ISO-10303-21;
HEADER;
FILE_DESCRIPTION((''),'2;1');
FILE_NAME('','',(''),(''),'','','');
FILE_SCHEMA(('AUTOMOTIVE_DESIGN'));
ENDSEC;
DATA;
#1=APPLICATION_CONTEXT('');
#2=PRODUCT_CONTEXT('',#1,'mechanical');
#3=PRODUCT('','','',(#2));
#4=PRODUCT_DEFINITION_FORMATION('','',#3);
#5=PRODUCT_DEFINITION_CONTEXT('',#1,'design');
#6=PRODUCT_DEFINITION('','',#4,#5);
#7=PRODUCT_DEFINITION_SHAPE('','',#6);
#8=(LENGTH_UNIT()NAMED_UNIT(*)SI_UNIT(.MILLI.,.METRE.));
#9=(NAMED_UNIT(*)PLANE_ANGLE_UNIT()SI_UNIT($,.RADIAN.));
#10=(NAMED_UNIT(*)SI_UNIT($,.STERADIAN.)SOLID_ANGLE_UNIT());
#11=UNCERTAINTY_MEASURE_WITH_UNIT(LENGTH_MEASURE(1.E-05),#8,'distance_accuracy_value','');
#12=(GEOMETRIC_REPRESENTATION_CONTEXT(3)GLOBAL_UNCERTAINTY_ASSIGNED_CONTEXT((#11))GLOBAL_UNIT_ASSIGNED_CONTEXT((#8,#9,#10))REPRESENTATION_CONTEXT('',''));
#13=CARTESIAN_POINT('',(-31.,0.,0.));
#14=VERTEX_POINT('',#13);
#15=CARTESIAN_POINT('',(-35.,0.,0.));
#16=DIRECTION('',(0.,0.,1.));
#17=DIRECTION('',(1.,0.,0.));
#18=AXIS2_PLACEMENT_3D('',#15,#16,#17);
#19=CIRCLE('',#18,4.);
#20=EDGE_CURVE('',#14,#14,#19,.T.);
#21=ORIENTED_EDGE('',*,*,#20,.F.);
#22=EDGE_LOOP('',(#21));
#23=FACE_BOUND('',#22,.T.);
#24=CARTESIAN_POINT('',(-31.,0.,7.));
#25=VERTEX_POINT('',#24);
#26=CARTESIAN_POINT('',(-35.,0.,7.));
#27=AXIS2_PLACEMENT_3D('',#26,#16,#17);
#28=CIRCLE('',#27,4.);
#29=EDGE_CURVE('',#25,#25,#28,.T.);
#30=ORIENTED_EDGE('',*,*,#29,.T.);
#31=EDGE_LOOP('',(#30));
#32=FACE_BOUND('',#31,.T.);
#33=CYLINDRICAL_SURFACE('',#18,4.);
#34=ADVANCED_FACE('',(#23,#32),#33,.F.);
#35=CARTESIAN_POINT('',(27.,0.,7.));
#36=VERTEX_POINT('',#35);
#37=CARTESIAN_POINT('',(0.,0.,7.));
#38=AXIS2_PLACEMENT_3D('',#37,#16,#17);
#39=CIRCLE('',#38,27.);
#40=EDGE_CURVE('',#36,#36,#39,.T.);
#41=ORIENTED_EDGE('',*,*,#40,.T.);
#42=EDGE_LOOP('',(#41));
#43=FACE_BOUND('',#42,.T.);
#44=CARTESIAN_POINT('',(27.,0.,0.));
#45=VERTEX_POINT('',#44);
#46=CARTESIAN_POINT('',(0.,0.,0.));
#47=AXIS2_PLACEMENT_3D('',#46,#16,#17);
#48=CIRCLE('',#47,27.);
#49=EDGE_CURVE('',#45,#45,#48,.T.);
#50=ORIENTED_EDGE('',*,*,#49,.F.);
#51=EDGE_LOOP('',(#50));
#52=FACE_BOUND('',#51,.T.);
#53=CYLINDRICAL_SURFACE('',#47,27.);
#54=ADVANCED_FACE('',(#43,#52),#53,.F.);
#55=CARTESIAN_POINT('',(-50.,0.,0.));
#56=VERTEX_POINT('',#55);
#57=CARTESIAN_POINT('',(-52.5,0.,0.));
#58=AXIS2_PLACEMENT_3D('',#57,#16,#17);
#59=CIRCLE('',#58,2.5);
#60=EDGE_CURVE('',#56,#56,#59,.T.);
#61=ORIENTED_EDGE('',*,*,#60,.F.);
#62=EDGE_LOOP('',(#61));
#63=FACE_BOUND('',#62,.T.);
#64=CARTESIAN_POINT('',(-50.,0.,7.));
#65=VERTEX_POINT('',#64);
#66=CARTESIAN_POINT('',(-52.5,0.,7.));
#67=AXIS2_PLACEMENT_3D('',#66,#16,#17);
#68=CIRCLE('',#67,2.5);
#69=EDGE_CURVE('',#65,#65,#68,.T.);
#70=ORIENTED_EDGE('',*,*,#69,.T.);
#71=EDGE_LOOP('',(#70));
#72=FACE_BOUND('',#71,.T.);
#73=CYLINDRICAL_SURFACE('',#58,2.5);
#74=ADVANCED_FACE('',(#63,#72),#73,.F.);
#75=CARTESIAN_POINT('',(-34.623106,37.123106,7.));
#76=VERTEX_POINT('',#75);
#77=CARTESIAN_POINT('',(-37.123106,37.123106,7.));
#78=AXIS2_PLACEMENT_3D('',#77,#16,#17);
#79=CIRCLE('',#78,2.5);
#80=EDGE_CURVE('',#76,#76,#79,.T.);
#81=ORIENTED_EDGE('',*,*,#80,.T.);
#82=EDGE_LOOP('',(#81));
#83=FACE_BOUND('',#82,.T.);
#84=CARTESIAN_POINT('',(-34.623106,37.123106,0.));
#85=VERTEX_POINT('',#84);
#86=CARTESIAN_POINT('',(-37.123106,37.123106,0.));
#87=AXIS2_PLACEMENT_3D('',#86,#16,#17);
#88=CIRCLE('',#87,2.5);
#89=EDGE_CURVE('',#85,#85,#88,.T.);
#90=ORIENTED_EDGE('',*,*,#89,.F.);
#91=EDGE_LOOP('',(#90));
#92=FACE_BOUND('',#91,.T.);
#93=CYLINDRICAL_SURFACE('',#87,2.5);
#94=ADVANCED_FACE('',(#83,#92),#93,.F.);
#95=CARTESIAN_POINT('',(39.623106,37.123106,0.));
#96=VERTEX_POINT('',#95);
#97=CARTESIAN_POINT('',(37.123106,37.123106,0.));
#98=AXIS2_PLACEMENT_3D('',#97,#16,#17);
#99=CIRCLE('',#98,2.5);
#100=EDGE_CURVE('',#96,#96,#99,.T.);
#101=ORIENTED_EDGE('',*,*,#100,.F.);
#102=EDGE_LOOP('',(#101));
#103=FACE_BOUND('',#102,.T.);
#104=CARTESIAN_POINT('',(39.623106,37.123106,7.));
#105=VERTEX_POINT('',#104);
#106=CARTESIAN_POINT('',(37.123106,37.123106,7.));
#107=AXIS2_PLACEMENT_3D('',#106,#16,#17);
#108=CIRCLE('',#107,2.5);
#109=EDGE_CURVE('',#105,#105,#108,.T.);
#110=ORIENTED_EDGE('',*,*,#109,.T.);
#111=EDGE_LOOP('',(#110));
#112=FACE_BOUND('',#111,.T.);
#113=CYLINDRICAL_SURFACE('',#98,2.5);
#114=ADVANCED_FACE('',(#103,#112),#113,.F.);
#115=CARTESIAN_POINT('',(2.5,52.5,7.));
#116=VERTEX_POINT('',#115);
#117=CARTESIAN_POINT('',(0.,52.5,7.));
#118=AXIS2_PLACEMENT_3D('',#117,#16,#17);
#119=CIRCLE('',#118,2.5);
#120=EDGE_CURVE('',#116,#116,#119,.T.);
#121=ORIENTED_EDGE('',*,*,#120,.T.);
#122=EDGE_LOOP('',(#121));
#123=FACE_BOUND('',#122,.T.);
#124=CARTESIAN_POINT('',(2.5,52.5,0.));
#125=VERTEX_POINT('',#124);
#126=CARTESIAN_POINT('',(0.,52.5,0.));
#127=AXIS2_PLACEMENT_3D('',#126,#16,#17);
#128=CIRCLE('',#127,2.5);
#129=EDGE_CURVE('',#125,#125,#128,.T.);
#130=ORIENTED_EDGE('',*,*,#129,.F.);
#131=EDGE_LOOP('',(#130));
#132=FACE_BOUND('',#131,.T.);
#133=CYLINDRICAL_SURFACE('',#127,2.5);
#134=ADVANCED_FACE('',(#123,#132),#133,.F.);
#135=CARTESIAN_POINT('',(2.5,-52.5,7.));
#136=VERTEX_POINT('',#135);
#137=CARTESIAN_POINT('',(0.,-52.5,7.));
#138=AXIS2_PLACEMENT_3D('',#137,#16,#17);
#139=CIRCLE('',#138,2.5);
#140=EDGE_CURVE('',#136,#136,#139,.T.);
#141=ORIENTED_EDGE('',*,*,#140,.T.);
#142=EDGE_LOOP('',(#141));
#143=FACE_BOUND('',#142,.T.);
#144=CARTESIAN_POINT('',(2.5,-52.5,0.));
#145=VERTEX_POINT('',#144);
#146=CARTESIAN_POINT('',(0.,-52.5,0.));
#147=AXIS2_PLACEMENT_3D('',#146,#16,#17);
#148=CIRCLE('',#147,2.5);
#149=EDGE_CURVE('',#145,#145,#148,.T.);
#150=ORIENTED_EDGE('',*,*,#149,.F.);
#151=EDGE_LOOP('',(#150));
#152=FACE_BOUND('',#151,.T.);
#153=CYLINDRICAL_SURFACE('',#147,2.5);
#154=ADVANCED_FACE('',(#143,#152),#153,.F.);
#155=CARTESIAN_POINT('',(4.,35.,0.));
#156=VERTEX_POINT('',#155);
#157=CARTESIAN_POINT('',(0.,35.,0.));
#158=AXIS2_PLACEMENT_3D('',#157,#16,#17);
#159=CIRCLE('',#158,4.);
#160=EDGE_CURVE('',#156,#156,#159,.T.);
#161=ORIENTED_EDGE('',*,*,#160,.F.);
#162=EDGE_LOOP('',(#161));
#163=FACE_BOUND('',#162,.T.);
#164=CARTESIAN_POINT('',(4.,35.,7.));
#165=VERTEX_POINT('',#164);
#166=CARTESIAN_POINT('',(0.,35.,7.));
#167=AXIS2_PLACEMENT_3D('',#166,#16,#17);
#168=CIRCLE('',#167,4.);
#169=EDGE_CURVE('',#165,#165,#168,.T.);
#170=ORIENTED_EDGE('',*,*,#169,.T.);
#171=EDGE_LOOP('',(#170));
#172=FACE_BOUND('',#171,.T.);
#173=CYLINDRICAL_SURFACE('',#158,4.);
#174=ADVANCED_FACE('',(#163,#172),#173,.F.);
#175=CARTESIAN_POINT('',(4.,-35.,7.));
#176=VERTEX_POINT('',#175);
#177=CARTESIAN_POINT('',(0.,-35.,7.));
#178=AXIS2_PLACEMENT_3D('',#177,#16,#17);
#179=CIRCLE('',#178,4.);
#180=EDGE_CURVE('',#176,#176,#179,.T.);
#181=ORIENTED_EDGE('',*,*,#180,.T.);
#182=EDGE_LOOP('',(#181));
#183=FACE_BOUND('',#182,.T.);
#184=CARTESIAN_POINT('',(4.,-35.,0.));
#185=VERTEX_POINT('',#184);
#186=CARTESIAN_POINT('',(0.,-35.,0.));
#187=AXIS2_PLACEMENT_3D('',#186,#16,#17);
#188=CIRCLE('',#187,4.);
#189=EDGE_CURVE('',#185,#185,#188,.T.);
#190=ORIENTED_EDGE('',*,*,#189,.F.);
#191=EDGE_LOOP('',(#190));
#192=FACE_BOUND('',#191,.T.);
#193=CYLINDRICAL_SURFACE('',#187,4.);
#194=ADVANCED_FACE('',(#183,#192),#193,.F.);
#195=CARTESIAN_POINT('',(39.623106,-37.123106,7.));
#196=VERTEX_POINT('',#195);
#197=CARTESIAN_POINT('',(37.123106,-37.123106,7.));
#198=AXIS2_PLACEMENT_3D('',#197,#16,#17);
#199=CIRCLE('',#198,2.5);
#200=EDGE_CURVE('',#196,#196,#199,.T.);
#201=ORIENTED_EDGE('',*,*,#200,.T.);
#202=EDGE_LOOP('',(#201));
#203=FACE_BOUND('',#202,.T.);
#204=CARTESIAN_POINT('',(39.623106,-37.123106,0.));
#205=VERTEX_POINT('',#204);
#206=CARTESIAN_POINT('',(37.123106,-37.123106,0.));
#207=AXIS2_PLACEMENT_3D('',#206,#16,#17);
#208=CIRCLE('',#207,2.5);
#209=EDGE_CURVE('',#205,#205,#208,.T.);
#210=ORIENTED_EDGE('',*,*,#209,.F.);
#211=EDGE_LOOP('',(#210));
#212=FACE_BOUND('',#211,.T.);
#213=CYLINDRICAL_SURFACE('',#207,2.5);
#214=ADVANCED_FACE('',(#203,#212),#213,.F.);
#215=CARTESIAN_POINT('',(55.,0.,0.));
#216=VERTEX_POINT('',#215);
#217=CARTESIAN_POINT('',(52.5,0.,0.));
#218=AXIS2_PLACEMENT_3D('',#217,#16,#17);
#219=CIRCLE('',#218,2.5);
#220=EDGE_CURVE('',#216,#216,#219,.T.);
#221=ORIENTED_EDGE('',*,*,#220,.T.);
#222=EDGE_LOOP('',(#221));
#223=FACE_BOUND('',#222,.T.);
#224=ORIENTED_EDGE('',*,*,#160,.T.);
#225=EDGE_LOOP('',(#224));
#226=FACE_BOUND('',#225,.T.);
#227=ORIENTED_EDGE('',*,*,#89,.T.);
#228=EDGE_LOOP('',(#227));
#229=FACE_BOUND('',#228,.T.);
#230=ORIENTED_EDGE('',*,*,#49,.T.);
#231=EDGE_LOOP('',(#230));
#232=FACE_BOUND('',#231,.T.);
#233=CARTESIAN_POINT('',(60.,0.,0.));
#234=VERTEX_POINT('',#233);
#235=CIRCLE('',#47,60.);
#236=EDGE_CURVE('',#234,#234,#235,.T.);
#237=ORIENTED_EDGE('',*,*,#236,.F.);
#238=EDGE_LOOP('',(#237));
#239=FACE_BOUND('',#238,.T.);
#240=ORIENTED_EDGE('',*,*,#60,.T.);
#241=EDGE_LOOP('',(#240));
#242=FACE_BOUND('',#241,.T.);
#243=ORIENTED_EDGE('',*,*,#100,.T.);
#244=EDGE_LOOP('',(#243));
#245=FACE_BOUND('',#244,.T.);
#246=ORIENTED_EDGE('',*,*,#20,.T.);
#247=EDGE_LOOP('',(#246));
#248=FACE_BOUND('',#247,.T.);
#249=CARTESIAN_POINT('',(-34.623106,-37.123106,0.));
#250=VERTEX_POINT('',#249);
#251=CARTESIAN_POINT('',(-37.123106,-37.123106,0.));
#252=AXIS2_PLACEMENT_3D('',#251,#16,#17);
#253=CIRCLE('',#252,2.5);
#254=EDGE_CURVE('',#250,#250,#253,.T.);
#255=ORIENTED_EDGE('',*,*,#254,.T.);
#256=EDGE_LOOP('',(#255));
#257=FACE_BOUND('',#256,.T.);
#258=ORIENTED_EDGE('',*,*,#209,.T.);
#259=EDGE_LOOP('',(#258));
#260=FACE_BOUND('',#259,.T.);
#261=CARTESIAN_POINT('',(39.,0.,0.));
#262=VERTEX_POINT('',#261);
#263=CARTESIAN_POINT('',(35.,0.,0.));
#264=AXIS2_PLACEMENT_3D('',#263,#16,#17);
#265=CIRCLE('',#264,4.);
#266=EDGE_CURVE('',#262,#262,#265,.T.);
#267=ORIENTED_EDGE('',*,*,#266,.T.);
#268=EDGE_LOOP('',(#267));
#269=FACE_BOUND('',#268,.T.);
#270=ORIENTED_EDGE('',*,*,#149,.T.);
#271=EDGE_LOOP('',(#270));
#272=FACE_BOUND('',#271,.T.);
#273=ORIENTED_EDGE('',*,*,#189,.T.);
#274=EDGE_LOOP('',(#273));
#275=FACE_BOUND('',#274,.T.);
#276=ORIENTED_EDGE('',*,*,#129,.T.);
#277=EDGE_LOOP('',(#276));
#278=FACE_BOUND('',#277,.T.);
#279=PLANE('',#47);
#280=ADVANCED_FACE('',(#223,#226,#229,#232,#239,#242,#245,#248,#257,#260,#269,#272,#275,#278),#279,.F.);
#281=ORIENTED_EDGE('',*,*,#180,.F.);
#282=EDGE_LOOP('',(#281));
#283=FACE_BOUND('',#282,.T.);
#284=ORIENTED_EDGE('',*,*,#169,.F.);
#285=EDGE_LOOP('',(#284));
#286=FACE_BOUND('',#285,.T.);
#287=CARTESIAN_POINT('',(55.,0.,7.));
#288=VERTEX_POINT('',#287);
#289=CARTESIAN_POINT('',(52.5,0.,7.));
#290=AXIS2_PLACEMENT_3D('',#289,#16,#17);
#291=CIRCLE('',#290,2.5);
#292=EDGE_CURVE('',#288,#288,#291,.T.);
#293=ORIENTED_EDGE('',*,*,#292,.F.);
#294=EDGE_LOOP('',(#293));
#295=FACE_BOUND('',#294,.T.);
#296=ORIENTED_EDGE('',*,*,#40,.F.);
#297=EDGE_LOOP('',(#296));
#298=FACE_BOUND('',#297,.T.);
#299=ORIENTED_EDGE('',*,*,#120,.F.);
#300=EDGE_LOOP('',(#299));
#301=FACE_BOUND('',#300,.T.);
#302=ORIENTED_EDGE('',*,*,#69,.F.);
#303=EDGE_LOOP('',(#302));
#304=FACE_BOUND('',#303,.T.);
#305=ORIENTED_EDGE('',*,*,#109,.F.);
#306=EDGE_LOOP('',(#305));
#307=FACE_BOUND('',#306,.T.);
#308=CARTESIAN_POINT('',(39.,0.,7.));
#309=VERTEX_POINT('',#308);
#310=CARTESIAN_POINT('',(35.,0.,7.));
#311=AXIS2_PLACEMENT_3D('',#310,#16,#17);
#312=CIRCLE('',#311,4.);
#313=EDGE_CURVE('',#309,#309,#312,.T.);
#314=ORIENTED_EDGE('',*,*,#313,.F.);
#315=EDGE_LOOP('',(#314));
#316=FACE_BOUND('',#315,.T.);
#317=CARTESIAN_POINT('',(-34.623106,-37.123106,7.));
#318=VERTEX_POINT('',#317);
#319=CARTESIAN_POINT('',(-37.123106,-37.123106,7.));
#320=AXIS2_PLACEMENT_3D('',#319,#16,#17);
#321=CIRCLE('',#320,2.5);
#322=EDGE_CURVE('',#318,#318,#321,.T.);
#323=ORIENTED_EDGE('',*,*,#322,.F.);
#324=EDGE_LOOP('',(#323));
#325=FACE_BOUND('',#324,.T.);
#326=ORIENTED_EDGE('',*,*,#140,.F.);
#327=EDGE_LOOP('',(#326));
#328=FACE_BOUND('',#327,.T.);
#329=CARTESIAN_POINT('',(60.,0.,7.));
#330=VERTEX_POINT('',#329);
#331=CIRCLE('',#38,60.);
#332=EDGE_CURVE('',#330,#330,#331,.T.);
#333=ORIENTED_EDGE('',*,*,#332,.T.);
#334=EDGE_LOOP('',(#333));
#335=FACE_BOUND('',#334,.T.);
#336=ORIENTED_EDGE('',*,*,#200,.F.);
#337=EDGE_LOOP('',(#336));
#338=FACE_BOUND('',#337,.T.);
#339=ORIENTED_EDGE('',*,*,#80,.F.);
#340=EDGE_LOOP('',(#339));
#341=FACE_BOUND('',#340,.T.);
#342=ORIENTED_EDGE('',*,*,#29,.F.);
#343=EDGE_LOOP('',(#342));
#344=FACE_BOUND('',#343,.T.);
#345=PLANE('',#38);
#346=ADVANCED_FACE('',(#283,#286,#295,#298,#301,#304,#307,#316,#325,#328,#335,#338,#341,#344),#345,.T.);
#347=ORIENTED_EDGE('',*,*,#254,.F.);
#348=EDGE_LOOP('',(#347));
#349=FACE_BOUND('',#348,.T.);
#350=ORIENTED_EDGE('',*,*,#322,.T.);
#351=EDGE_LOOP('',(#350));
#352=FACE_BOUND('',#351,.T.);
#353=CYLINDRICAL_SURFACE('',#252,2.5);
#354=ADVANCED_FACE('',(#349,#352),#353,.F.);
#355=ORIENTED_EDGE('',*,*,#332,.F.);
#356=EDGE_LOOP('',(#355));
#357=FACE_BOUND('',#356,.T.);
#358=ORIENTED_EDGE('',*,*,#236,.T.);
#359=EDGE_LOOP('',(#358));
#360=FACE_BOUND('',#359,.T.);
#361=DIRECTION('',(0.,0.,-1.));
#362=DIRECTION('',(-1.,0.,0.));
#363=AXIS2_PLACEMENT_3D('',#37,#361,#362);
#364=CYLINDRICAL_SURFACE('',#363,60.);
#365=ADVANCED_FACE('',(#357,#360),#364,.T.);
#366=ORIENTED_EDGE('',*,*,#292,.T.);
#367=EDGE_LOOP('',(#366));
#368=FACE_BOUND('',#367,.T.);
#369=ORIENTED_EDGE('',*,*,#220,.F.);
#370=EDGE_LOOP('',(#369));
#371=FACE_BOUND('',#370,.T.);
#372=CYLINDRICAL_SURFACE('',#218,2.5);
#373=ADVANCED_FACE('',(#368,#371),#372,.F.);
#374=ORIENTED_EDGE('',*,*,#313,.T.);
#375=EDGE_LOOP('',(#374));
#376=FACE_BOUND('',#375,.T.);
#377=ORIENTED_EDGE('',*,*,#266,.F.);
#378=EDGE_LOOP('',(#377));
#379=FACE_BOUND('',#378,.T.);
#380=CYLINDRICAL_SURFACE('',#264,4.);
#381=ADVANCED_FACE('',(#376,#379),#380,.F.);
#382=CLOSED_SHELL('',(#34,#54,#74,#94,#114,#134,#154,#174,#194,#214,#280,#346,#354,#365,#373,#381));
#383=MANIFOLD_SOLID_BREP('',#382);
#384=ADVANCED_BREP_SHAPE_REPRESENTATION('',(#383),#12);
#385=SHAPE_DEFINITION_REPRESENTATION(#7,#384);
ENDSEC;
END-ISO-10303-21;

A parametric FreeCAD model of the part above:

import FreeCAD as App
import Part
import Sketcher

doc = App.newDocument("Part")
body = doc.addObject("PartDesign::Body", "Body")

# Sketch on XY plane
sketch1 = doc.addObject("Sketcher::SketchObject", "Sketch")
body.addObject(sketch1)
sketch1.AttachmentSupport = (doc.XY_Plane, [""])
sketch1.MapMode = "FlatFace"
sketch1.addGeometry(Part.Circle(App.Vector(0, 0, 0), App.Vector(0, 0, 1), 60), False)
sketch1.addConstraint(Sketcher.Constraint("Coincident", 0, 3, -1, 1))
sketch1.addConstraint(Sketcher.Constraint("Diameter", 0, 120.0))
pad1 = doc.addObject("PartDesign::Pad", "Pad")
body.addObject(pad1)
pad1.Profile = sketch1
pad1.Length = 7

# Sketch on XY plane
sketch2 = doc.addObject("Sketcher::SketchObject", "Sketch001")
body.addObject(sketch2)
sketch2.AttachmentSupport = (doc.XY_Plane, [""])
sketch2.MapMode = "FlatFace"
sketch2.AttachmentOffset = App.Placement(App.Vector(0, 0, 7), App.Rotation())
sketch2.addGeometry(Part.Circle(App.Vector(0, 0, 0), App.Vector(0, 0, 1), 27), False)
sketch2.addConstraint(Sketcher.Constraint("Coincident", 0, 3, -1, 1))
sketch2.addConstraint(Sketcher.Constraint("Diameter", 0, 54.0))
pocket1 = doc.addObject("PartDesign::Pocket", "Pocket")
body.addObject(pocket1)
pocket1.Profile = sketch2
pocket1.Type = "ThroughAll"

# Sketch on XY plane
sketch3 = doc.addObject("Sketcher::SketchObject", "Sketch002")
body.addObject(sketch3)
sketch3.AttachmentSupport = (doc.XY_Plane, [""])
sketch3.MapMode = "FlatFace"
sketch3.AttachmentOffset = App.Placement(App.Vector(0, 0, 7), App.Rotation())
sketch3.addGeometry(Part.Circle(App.Vector(0, 35, 0), App.Vector(0, 0, 1), 4), False)
sketch3.addGeometry(Part.Circle(App.Vector(35, 0, 0), App.Vector(0, 0, 1), 4), False)
sketch3.addGeometry(Part.Circle(App.Vector(0, -35, 0), App.Vector(0, 0, 1), 4), False)
sketch3.addGeometry(Part.Circle(App.Vector(-35, 0, 0), App.Vector(0, 0, 1), 4), False)
sketch3.addConstraint(Sketcher.Constraint("Equal", 0, 1))
sketch3.addConstraint(Sketcher.Constraint("Equal", 1, 2))
sketch3.addConstraint(Sketcher.Constraint("Equal", 2, 3))
sketch3.addConstraint(Sketcher.Constraint("Symmetric", 0, 3, 2, 3, -1, 1))
sketch3.addConstraint(Sketcher.Constraint("Symmetric", 1, 3, 3, 3, -1, 1))
sketch3.addConstraint(Sketcher.Constraint("PointOnObject", 0, 3, -2))
sketch3.addConstraint(Sketcher.Constraint("PointOnObject", 1, 3, -1))
sketch3.addConstraint(Sketcher.Constraint("Diameter", 0, 8.0))
sketch3.addConstraint(Sketcher.Constraint("DistanceY", -1, 1, 0, 3, 35.0))
sketch3.addConstraint(Sketcher.Constraint("DistanceX", -1, 1, 1, 3, 35.0))
pocket2 = doc.addObject("PartDesign::Pocket", "Pocket001")
body.addObject(pocket2)
pocket2.Profile = sketch3
pocket2.Type = "ThroughAll"

# Sketch on XY plane
sketch4 = doc.addObject("Sketcher::SketchObject", "Sketch003")
body.addObject(sketch4)
sketch4.AttachmentSupport = (doc.XY_Plane, [""])
sketch4.MapMode = "FlatFace"
sketch4.AttachmentOffset = App.Placement(App.Vector(0, 0, 7), App.Rotation())
sketch4.addGeometry(Part.Circle(App.Vector(37.123106, 37.123106, 0), App.Vector(0, 0, 1), 2.5), False)
sketch4.addGeometry(Part.Circle(App.Vector(52.5, 0, 0), App.Vector(0, 0, 1), 2.5), False)
sketch4.addGeometry(Part.Circle(App.Vector(37.123106, -37.123106, 0), App.Vector(0, 0, 1), 2.5), False)
sketch4.addGeometry(Part.Circle(App.Vector(-52.5, 0, 0), App.Vector(0, 0, 1), 2.5), False)
sketch4.addGeometry(Part.Circle(App.Vector(-37.123106, 37.123106, 0), App.Vector(0, 0, 1), 2.5), False)
sketch4.addGeometry(Part.Circle(App.Vector(0, 52.5, 0), App.Vector(0, 0, 1), 2.5), False)
sketch4.addGeometry(Part.Circle(App.Vector(0, -52.5, 0), App.Vector(0, 0, 1), 2.5), False)
sketch4.addGeometry(Part.Circle(App.Vector(-37.123106, -37.123106, 0), App.Vector(0, 0, 1), 2.5), False)
sketch4.addConstraint(Sketcher.Constraint("Equal", 0, 1))
sketch4.addConstraint(Sketcher.Constraint("Equal", 1, 2))
sketch4.addConstraint(Sketcher.Constraint("Equal", 2, 3))
sketch4.addConstraint(Sketcher.Constraint("Equal", 3, 4))
sketch4.addConstraint(Sketcher.Constraint("Equal", 4, 5))
sketch4.addConstraint(Sketcher.Constraint("Equal", 5, 6))
sketch4.addConstraint(Sketcher.Constraint("Equal", 6, 7))
sketch4.addConstraint(Sketcher.Constraint("Symmetric", 1, 3, 3, 3, -1, 1))
sketch4.addConstraint(Sketcher.Constraint("Symmetric", 2, 3, 4, 3, -1, 1))
sketch4.addConstraint(Sketcher.Constraint("Symmetric", 5, 3, 6, 3, -1, 1))
sketch4.addConstraint(Sketcher.Constraint("Symmetric", 0, 3, 7, 3, -1, 1))
sketch4.addConstraint(Sketcher.Constraint("Symmetric", 0, 3, 4, 3, -2))
sketch4.addConstraint(Sketcher.Constraint("PointOnObject", 1, 3, -1))
sketch4.addConstraint(Sketcher.Constraint("PointOnObject", 5, 3, -2))
sketch4.addConstraint(Sketcher.Constraint("Diameter", 0, 5.0))
sketch4.addConstraint(Sketcher.Constraint("DistanceX", 3, 3, 1, 3, 105.0))
sketch4.addConstraint(Sketcher.Constraint("DistanceY", -1, 1, 5, 3, 52.5))
sketch4.addConstraint(Sketcher.Constraint("DistanceX", -1, 1, 0, 3, 37.123106))
sketch4.addConstraint(Sketcher.Constraint("DistanceY", -1, 1, 0, 3, 37.123106))
pocket3 = doc.addObject("PartDesign::Pocket", "Pocket002")
body.addObject(pocket3)
pocket3.Profile = sketch4
pocket3.Type = "ThroughAll"

doc.recompute()
